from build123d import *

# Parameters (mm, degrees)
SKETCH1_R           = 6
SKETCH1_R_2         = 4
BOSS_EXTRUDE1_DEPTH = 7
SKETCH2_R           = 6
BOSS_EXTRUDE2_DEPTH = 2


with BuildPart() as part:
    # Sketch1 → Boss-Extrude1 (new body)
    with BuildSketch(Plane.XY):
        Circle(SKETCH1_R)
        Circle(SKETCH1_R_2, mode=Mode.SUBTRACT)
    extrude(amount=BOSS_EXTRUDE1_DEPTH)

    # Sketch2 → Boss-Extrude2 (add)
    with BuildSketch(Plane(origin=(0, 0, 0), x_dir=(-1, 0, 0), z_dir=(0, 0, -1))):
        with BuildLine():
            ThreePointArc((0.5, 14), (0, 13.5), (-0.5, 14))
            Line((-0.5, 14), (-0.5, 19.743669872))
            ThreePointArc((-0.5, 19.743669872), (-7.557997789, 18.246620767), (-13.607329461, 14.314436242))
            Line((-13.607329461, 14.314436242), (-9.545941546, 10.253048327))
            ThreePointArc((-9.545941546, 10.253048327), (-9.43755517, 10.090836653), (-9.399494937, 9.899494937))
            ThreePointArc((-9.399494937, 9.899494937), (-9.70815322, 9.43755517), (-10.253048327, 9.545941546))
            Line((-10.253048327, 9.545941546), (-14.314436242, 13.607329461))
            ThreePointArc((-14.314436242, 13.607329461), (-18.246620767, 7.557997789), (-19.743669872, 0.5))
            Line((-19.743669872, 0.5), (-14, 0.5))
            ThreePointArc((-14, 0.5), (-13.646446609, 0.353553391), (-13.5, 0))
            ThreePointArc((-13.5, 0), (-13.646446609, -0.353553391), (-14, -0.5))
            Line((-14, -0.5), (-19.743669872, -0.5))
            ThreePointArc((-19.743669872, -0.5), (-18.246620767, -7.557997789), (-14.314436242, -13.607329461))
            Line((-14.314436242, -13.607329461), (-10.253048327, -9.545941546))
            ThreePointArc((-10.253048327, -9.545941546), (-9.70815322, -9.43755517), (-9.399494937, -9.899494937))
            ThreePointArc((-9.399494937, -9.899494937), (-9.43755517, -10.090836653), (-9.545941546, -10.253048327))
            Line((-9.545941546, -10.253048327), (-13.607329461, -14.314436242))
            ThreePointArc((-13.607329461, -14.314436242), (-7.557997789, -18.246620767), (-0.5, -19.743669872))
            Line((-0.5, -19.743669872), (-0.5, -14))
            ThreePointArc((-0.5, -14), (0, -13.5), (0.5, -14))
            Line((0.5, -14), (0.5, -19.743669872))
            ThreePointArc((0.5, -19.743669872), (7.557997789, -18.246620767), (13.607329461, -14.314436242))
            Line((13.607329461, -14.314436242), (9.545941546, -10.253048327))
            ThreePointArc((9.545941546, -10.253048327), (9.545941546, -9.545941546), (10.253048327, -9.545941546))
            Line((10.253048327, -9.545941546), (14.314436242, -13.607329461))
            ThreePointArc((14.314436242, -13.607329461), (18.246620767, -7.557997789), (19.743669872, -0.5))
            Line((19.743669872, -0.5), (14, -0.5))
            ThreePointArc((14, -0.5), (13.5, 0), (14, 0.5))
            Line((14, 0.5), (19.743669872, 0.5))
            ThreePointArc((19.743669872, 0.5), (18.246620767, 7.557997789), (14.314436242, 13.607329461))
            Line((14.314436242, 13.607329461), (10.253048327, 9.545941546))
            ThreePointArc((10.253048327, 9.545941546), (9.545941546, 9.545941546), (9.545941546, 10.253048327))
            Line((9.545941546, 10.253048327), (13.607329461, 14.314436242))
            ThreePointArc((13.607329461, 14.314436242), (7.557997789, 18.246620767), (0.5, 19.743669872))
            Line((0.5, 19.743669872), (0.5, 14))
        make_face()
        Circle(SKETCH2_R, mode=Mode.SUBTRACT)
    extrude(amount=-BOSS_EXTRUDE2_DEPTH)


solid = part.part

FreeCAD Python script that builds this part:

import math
import FreeCAD as App
import Part
import Sketcher
Q = App.Units.Quantity

doc = App.newDocument("Part")
body = doc.addObject("PartDesign::Body", "Body")

# Sketch on XY plane
sketch1 = doc.addObject("Sketcher::SketchObject", "Sketch")
body.addObject(sketch1)
sketch1.AttachmentSupport = (doc.XY_Plane, [""])
sketch1.MapMode = "FlatFace"
sketch1.addGeometry([
    Part.Circle(App.Vector(0, 0, 0), App.Vector(0, 0, 1), 6),
    Part.Circle(App.Vector(0, 0, 0), App.Vector(0, 0, 1), 4),
], False)
sketch1.addConstraint([
    Sketcher.Constraint("Coincident", 0, 3, -1, 1),
    Sketcher.Constraint("Coincident", 1, 3, -1, 1),
    Sketcher.Constraint("Diameter", 0, Q("12 mm")),
    Sketcher.Constraint("Diameter", 1, Q("8 mm")),
])
pad1 = doc.addObject("PartDesign::Pad", "Pad")
body.addObject(pad1)
pad1.Profile = sketch1
pad1.Length = 7

# Sketch on XY plane
sketch2 = doc.addObject("Sketcher::SketchObject", "Sketch001")
body.addObject(sketch2)
sketch2.AttachmentSupport = (doc.XY_Plane, [""])
sketch2.MapMode = "FlatFace"
sketch2.addGeometry([
    Part.ArcOfCircle(Part.Circle(App.Vector(0, 14, 0), App.Vector(0, 0, 1), 0.5), math.radians(180), math.radians(360)),  # 0
    Part.LineSegment(App.Vector(0.5, 14, 0), App.Vector(0.5, 19.74, 0)),  # 1
    Part.ArcOfCircle(Part.Circle(App.Vector(0, 0, 0), App.Vector(0, 0, 1), 19.75), math.radians(46), math.radians(89)),  # 2
    Part.LineSegment(App.Vector(13.61, 14.31, 0), App.Vector(9.55, 10.25, 0)),  # 3
    Part.ArcOfCircle(Part.Circle(App.Vector(9.9, 9.9, 0), App.Vector(0, 0, 1), 0.5), math.radians(135), math.radians(180)),  # 4
    Part.ArcOfCircle(Part.Circle(App.Vector(9.9, 9.9, 0), App.Vector(0, 0, 1), 0.5), math.radians(180), math.radians(315)),  # 5
    Part.LineSegment(App.Vector(10.25, 9.55, 0), App.Vector(14.31, 13.61, 0)),  # 6
    Part.ArcOfCircle(Part.Circle(App.Vector(0, 0, 0), App.Vector(0, 0, 1), 19.75), math.radians(1), math.radians(44)),  # 7
    Part.LineSegment(App.Vector(19.74, 0.5, 0), App.Vector(14, 0.5, 0)),  # 8
    Part.ArcOfCircle(Part.Circle(App.Vector(14, 0, 0), App.Vector(0, 0, 1), 0.5), math.radians(90), math.radians(180)),  # 9
    Part.ArcOfCircle(Part.Circle(App.Vector(14, 0, 0), App.Vector(0, 0, 1), 0.5), math.radians(180), math.radians(270)),  # 10
    Part.LineSegment(App.Vector(14, -0.5, 0), App.Vector(19.74, -0.5, 0)),  # 11
    Part.ArcOfCircle(Part.Circle(App.Vector(0, 0, 0), App.Vector(0, 0, 1), 19.75), math.radians(-44), math.radians(-1)),  # 12
    Part.LineSegment(App.Vector(14.31, -13.61, 0), App.Vector(10.25, -9.55, 0)),  # 13
    Part.ArcOfCircle(Part.Circle(App.Vector(9.9, -9.9, 0), App.Vector(0, 0, 1), 0.5), math.radians(45), math.radians(180)),  # 14
    Part.ArcOfCircle(Part.Circle(App.Vector(9.9, -9.9, 0), App.Vector(0, 0, 1), 0.5), math.radians(180), math.radians(225)),  # 15
    Part.LineSegment(App.Vector(9.55, -10.25, 0), App.Vector(13.61, -14.31, 0)),  # 16
    Part.ArcOfCircle(Part.Circle(App.Vector(0, 0, 0), App.Vector(0, 0, 1), 19.75), math.radians(-89), math.radians(-46)),  # 17
    Part.LineSegment(App.Vector(0.5, -19.74, 0), App.Vector(0.5, -14, 0)),  # 18
    Part.ArcOfCircle(Part.Circle(App.Vector(0, -14, 0), App.Vector(0, 0, 1), 0.5), math.radians(0), math.radians(180)),  # 19
    Part.LineSegment(App.Vector(-0.5, -14, 0), App.Vector(-0.5, -19.74, 0)),  # 20
    Part.ArcOfCircle(Part.Circle(App.Vector(0, 0, 0), App.Vector(0, 0, 1), 19.75), math.radians(-134), math.radians(-91)),  # 21
    Part.LineSegment(App.Vector(-13.61, -14.31, 0), App.Vector(-9.55, -10.25, 0)),  # 22
    Part.ArcOfCircle(Part.Circle(App.Vector(-9.9, -9.9, 0), App.Vector(0, 0, 1), 0.5), math.radians(-45), math.radians(135)),  # 23
    Part.LineSegment(App.Vector(-10.25, -9.55, 0), App.Vector(-14.31, -13.61, 0)),  # 24
    Part.ArcOfCircle(Part.Circle(App.Vector(0, 0, 0), App.Vector(0, 0, 1), 19.75), math.radians(-179), math.radians(-136)),  # 25
    Part.LineSegment(App.Vector(-19.74, -0.5, 0), App.Vector(-14, -0.5, 0)),  # 26
    Part.ArcOfCircle(Part.Circle(App.Vector(-14, 0, 0), App.Vector(0, 0, 1), 0.5), math.radians(-90), math.radians(90)),  # 27
    Part.LineSegment(App.Vector(-14, 0.5, 0), App.Vector(-19.74, 0.5, 0)),  # 28
    Part.ArcOfCircle(Part.Circle(App.Vector(0, 0, 0), App.Vector(0, 0, 1), 19.75), math.radians(136), math.radians(179)),  # 29
    Part.LineSegment(App.Vector(-14.31, 13.61, 0), App.Vector(-10.25, 9.55, 0)),  # 30
    Part.ArcOfCircle(Part.Circle(App.Vector(-9.9, 9.9, 0), App.Vector(0, 0, 1), 0.5), math.radians(-135), math.radians(45)),  # 31
    Part.LineSegment(App.Vector(-9.55, 10.25, 0), App.Vector(-13.61, 14.31, 0)),  # 32
    Part.ArcOfCircle(Part.Circle(App.Vector(0, 0, 0), App.Vector(0, 0, 1), 19.75), math.radians(91), math.radians(134)),  # 33
    Part.LineSegment(App.Vector(-0.5, 19.74, 0), App.Vector(-0.5, 14, 0)),  # 34
    Part.Circle(App.Vector(0, 0, 0), App.Vector(0, 0, 1), 6),  # 35
], False)
sketch2.addConstraint([
    Sketcher.Constraint("Tangent", 0, 2, 1, 1),
    Sketcher.Constraint("Coincident", 1, 2, 2, 2),
    Sketcher.Constraint("Coincident", 2, 1, 3, 1),
    Sketcher.Constraint("Tangent", 3, 2, 4, 1),
    Sketcher.Constraint("Tangent", 4, 2, 5, 1),
    Sketcher.Constraint("Tangent", 5, 2, 6, 1),
    Sketcher.Constraint("Coincident", 6, 2, 7, 2),
    Sketcher.Constraint("Coincident", 7, 1, 8, 1),
    Sketcher.Constraint("Tangent", 8, 2, 9, 1),
    Sketcher.Constraint("Tangent", 9, 2, 10, 1),
    Sketcher.Constraint("Tangent", 10, 2, 11, 1),
    Sketcher.Constraint("Coincident", 11, 2, 12, 2),
    Sketcher.Constraint("Coincident", 12, 1, 13, 1),
    Sketcher.Constraint("Tangent", 13, 2, 14, 1),
    Sketcher.Constraint("Tangent", 14, 2, 15, 1),
    Sketcher.Constraint("Tangent", 15, 2, 16, 1),
    Sketcher.Constraint("Coincident", 16, 2, 17, 2),
    Sketcher.Constraint("Coincident", 17, 1, 18, 1),
    Sketcher.Constraint("Tangent", 18, 2, 19, 1),
    Sketcher.Constraint("Tangent", 19, 2, 20, 1),
    Sketcher.Constraint("Coincident", 20, 2, 21, 2),
    Sketcher.Constraint("Coincident", 21, 1, 22, 1),
    Sketcher.Constraint("Tangent", 22, 2, 23, 1),
    Sketcher.Constraint("Tangent", 23, 2, 24, 1),
    Sketcher.Constraint("Coincident", 24, 2, 25, 2),
    Sketcher.Constraint("Coincident", 25, 1, 26, 1),
    Sketcher.Constraint("Tangent", 26, 2, 27, 1),
    Sketcher.Constraint("Tangent", 27, 2, 28, 1),
    Sketcher.Constraint("Coincident", 28, 2, 29, 2),
    Sketcher.Constraint("Coincident", 29, 1, 30, 1),
    Sketcher.Constraint("Tangent", 30, 2, 31, 1),
    Sketcher.Constraint("Tangent", 31, 2, 32, 1),
    Sketcher.Constraint("Coincident", 32, 2, 33, 2),
    Sketcher.Constraint("Coincident", 33, 1, 34, 1),
    Sketcher.Constraint("Tangent", 34, 2, 0, 1),
    Sketcher.Constraint("Vertical", 1),
    Sketcher.Constraint("Horizontal", 8),
    Sketcher.Constraint("Horizontal", 11),
    Sketcher.Constraint("Vertical", 18),
    Sketcher.Constraint("Vertical", 20),
    Sketcher.Constraint("Horizontal", 26),
    Sketcher.Constraint("Horizontal", 28),
    Sketcher.Constraint("Vertical", 34),
    Sketcher.Constraint("Coincident", 2, 3, -1, 1),
    Sketcher.Constraint("Coincident", 7, 3, -1, 1),
    Sketcher.Constraint("Coincident", 12, 3, -1, 1),
    Sketcher.Constraint("Coincident", 17, 3, -1, 1),
    Sketcher.Constraint("Coincident", 21, 3, -1, 1),
    Sketcher.Constraint("Coincident", 25, 3, -1, 1),
    Sketcher.Constraint("Coincident", 29, 3, -1, 1),
    Sketcher.Constraint("Coincident", 33, 3, -1, 1),
    Sketcher.Constraint("Coincident", 35, 3, -1, 1),
    Sketcher.Constraint("Equal", 0, 4),
    Sketcher.Constraint("Equal", 4, 5),
    Sketcher.Constraint("Equal", 2, 7),
    Sketcher.Constraint("Equal", 5, 9),
    Sketcher.Constraint("Equal", 9, 10),
    Sketcher.Constraint("Equal", 7, 12),
    Sketcher.Constraint("Equal", 10, 14),
    Sketcher.Constraint("Equal", 14, 15),
    Sketcher.Constraint("Equal", 12, 17),
    Sketcher.Constraint("Equal", 15, 19),
    Sketcher.Constraint("Equal", 17, 21),
    Sketcher.Constraint("Equal", 19, 23),
    Sketcher.Constraint("Equal", 21, 25),
    Sketcher.Constraint("Equal", 23, 27),
    Sketcher.Constraint("Equal", 25, 29),
    Sketcher.Constraint("Equal", 27, 31),
    Sketcher.Constraint("Equal", 29, 33),
    Sketcher.Constraint("Symmetric", 0, 3, 19, 3, -1, 1),
    Sketcher.Constraint("Symmetric", 4, 3, 23, 3, -1, 1),
    Sketcher.Constraint("Symmetric", 9, 3, 27, 3, -1, 1),
    Sketcher.Constraint("Symmetric", 14, 3, 31, 3, -1, 1),
    Sketcher.Constraint("Symmetric", 14, 3, 23, 3, -2),
    Sketcher.Constraint("PointOnObject", 0, 3, -2),
    Sketcher.Constraint("PointOnObject", 9, 3, -1),
    Sketcher.Constraint("PointOnObject", 9, 2, -1),
    Sketcher.Constraint("Parallel", 3, 6),
    Sketcher.Constraint("Perpendicular", 6, 13),
    Sketcher.Constraint("Parallel", 13, 16),
    Sketcher.Constraint("Perpendicular", 16, 22),
    Sketcher.Constraint("Parallel", 22, 24),
    Sketcher.Constraint("Perpendicular", 24, 30),
    Sketcher.Constraint("Parallel", 30, 32),
    Sketcher.Constraint("Horizontal", 31, 3, 4, 2),
    Sketcher.Constraint("Horizontal", 23, 3, 14, 2),
    Sketcher.Constraint("Horizontal", 16, 2, 21, 1),
    Sketcher.Constraint("Equal", 28, 1),
    Sketcher.Constraint("Equal", 3, 6),
    Sketcher.Constraint("Diameter", 35, Q("12 mm")),
    Sketcher.Constraint("Radius", 0, Q("0.5 mm")),
    Sketcher.Constraint("Radius", 2, Q("19.75 mm")),
    Sketcher.Constraint("DistanceY", -1, 1, 0, 3, Q("14 mm")),
    Sketcher.Constraint("Distance", 3, Q("5.74367 mm")),
])
pad2 = doc.addObject("PartDesign::Pad", "Pad001")
body.addObject(pad2)
pad2.Profile = sketch2
pad2.Length = 2

doc.recompute()
